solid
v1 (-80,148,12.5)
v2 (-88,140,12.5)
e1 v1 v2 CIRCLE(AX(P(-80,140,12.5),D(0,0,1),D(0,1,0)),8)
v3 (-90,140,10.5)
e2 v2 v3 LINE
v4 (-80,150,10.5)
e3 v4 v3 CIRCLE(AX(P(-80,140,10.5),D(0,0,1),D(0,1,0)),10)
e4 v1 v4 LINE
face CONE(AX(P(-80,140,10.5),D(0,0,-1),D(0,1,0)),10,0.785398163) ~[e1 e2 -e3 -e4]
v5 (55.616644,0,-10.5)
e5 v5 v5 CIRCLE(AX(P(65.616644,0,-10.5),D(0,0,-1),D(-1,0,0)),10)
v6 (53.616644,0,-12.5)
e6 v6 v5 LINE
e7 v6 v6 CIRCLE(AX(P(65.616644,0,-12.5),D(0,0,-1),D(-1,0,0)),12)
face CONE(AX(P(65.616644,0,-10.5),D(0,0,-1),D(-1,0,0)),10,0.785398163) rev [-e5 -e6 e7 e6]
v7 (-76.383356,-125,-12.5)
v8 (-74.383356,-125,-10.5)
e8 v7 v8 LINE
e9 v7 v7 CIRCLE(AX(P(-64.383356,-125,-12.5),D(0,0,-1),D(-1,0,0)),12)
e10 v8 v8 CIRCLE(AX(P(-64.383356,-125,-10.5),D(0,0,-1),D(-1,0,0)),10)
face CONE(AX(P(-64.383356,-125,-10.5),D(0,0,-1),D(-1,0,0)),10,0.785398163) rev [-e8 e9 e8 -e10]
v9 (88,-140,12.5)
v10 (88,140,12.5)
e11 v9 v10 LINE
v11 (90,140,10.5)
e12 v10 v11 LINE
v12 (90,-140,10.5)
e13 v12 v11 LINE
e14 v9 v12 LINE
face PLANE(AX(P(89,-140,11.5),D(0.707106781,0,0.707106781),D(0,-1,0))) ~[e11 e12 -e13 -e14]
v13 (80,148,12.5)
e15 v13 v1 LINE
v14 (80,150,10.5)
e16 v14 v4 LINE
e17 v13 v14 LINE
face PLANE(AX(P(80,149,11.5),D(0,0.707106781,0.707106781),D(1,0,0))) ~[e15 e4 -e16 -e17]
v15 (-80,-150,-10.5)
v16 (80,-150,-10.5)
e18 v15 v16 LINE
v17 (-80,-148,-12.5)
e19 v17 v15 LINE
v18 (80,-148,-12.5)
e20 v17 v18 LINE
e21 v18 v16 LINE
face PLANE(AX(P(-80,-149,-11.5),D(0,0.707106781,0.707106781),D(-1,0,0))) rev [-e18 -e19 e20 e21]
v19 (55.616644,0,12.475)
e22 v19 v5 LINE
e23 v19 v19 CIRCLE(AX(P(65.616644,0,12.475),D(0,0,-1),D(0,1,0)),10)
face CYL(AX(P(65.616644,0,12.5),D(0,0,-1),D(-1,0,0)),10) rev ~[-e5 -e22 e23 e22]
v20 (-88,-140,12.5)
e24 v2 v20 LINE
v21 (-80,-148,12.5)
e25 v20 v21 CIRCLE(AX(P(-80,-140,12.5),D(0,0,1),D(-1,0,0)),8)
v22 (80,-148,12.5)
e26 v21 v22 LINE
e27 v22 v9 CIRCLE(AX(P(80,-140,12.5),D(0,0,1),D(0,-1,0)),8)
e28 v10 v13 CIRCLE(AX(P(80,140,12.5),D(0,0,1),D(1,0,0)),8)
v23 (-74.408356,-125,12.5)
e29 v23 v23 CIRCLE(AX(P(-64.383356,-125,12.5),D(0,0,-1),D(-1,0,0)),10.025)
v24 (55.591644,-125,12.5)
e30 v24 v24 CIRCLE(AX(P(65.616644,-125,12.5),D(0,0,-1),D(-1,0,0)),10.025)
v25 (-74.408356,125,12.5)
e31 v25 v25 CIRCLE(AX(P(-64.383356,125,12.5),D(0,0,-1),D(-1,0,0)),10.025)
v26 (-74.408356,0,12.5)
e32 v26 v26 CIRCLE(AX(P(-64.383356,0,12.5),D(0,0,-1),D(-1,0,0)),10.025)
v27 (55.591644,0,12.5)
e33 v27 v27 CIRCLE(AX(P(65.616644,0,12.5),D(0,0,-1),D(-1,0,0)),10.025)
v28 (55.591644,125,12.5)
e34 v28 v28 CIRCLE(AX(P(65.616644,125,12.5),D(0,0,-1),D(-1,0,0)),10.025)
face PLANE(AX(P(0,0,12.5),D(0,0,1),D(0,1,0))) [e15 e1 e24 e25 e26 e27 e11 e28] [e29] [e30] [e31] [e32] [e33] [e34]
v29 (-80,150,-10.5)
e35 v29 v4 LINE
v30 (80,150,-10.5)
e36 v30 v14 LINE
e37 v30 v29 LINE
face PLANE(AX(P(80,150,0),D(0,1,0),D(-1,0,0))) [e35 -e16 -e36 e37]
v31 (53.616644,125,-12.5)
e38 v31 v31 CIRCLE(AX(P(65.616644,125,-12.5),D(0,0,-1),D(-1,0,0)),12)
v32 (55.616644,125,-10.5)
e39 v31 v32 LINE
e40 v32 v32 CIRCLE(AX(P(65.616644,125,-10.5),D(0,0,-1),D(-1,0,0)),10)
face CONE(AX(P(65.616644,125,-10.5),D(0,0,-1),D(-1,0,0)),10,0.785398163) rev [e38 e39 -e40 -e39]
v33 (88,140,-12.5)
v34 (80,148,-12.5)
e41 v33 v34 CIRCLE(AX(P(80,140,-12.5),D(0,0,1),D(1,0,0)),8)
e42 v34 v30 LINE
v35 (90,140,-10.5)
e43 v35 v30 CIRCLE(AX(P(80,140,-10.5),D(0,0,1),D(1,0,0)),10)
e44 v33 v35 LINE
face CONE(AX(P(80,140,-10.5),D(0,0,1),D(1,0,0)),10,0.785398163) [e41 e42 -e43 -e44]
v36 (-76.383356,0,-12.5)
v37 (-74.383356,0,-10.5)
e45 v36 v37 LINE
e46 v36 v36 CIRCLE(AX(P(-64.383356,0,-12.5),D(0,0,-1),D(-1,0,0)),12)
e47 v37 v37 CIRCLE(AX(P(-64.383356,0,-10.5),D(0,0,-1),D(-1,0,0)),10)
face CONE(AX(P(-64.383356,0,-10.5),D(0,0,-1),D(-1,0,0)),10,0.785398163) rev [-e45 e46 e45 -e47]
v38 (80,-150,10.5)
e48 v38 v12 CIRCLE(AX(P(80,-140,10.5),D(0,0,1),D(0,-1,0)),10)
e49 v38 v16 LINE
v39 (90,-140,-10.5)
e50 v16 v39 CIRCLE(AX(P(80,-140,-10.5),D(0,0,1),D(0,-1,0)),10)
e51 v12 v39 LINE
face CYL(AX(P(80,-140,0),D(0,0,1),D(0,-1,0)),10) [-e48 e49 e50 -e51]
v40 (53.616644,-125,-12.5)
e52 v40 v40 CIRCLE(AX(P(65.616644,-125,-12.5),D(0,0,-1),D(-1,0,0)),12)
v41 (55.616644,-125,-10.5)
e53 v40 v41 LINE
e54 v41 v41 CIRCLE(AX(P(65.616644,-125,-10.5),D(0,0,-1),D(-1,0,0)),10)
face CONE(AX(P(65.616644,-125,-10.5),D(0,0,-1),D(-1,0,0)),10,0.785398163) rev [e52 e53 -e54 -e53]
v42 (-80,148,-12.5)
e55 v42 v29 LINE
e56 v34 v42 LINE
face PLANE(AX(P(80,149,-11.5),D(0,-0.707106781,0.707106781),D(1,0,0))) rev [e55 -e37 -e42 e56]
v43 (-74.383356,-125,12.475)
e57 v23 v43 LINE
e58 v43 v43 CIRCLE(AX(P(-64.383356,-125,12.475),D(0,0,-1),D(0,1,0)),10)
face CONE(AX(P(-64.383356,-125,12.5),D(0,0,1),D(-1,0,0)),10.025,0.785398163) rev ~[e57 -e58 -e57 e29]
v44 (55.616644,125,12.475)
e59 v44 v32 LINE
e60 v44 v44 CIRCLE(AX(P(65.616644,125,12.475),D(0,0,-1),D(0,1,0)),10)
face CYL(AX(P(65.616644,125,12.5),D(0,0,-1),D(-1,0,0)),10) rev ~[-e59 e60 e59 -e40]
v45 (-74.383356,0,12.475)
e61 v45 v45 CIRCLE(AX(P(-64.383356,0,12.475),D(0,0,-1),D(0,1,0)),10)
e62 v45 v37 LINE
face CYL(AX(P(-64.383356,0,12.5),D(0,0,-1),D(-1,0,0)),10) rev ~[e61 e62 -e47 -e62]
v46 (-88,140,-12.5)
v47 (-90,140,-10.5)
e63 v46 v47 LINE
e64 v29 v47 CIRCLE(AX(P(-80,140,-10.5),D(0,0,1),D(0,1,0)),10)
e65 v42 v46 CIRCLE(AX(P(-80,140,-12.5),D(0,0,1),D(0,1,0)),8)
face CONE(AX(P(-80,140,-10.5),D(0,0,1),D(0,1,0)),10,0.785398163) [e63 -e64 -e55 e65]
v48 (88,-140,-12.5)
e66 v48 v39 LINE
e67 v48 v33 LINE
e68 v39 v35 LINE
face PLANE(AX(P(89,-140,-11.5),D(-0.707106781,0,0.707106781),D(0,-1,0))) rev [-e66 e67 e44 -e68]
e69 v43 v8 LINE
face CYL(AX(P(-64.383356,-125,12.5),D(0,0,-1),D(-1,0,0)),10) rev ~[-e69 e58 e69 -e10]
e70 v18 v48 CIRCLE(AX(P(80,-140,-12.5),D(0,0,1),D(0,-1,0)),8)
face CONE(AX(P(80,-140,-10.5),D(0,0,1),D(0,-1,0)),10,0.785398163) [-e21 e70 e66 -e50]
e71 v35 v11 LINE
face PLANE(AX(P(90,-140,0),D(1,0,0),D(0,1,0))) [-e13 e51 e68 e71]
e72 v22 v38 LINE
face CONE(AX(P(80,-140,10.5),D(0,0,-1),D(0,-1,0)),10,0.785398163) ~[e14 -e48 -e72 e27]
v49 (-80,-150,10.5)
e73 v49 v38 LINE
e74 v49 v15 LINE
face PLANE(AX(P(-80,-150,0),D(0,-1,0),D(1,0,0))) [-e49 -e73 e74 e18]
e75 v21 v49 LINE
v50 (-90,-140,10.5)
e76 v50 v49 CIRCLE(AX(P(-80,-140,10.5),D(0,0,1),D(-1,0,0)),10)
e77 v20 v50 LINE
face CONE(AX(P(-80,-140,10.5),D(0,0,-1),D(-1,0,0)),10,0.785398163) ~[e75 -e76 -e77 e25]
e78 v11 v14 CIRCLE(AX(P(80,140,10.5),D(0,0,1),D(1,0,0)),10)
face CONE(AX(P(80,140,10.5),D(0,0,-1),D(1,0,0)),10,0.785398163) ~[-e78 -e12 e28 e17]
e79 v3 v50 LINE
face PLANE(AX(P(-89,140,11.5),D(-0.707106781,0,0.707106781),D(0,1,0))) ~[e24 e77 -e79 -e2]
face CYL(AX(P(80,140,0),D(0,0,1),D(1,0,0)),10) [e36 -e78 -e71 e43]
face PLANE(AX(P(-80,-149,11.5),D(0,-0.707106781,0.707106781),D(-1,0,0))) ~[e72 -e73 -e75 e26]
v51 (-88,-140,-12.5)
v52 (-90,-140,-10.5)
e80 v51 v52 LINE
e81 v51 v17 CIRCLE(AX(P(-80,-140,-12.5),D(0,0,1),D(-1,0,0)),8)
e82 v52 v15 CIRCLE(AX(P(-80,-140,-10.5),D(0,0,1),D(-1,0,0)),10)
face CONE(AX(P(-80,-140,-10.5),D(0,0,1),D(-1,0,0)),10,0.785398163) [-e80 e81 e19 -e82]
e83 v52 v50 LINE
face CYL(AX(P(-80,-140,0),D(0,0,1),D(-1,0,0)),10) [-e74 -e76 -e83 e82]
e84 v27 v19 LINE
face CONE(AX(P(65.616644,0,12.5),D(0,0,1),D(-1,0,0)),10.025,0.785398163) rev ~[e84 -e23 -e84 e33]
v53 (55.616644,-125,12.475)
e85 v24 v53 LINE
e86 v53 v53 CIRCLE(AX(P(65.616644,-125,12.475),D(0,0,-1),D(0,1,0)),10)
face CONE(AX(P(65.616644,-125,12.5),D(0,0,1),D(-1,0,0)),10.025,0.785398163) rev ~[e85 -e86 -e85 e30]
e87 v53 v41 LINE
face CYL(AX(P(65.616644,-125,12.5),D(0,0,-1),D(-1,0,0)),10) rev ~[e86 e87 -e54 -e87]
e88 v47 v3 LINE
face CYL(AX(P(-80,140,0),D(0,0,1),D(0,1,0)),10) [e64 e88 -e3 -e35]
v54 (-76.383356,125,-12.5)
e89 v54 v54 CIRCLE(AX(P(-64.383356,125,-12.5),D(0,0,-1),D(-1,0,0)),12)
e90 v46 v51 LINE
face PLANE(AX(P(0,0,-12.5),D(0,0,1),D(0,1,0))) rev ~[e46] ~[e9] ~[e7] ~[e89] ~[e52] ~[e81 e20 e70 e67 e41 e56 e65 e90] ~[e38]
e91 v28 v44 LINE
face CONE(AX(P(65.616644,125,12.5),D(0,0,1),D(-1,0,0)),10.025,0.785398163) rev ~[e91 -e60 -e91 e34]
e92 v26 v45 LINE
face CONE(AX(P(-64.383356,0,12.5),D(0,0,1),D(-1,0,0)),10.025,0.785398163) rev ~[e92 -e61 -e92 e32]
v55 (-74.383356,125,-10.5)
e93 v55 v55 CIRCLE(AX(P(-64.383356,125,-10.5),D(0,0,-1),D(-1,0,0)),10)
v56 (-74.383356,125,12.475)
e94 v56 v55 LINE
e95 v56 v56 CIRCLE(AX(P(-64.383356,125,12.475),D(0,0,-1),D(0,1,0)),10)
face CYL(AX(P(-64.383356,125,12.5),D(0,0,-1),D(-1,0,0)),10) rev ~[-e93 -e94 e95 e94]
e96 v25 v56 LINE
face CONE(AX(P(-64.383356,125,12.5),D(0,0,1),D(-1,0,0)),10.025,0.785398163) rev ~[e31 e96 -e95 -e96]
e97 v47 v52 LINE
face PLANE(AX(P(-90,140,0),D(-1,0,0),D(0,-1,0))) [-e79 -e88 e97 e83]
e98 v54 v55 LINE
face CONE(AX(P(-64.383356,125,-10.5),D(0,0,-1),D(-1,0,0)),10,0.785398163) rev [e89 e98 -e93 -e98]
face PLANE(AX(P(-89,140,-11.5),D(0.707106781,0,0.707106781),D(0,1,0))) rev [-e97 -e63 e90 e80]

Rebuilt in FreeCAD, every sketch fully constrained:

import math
import FreeCAD as App
import Part
import Sketcher

V = App.Vector


def edges_at(feature, points):
    """Names of the edges that pass closest to the given points."""
    edges = feature.Shape.Edges
    near = lambda p: min(range(len(edges)), key=lambda i: edges[i].distToShape(Part.Vertex(*p))[0])
    return sorted({f"Edge{near(p) + 1}" for p in points})

doc = App.newDocument("Part")
body = doc.addObject("PartDesign::Body", "Body")

# Sketch on XY plane
sketch1 = body.newObject("Sketcher::SketchObject", "Sketch")
sketch1.AttachmentSupport = (doc.getObject("XY_Plane"), [""])
sketch1.MapMode = "FlatFace"
sketch1.addGeometry([
    Part.LineSegment(V(90, -140, 0), V(90, 140, 0)),  # 0
    Part.ArcOfCircle(Part.Circle(V(80, 140, 0), V(0, 0, 1), 10), math.radians(0), math.radians(90)),  # 1
    Part.LineSegment(V(80, 150, 0), V(-80, 150, 0)),  # 2
    Part.ArcOfCircle(Part.Circle(V(-80, 140, 0), V(0, 0, 1), 10), math.radians(90), math.radians(180)),  # 3
    Part.LineSegment(V(-90, 140, 0), V(-90, -140, 0)),  # 4
    Part.ArcOfCircle(Part.Circle(V(-80, -140, 0), V(0, 0, 1), 10), math.radians(180), math.radians(270)),  # 5
    Part.LineSegment(V(-80, -150, 0), V(80, -150, 0)),  # 6
    Part.ArcOfCircle(Part.Circle(V(80, -140, 0), V(0, 0, 1), 10), math.radians(-90), math.radians(0)),  # 7
], False)
sketch1.addConstraint([
    Sketcher.Constraint("Tangent", 0, 2, 1, 1),
    Sketcher.Constraint("Tangent", 1, 2, 2, 1),
    Sketcher.Constraint("Tangent", 2, 2, 3, 1),
    Sketcher.Constraint("Tangent", 3, 2, 4, 1),
    Sketcher.Constraint("Tangent", 4, 2, 5, 1),
    Sketcher.Constraint("Tangent", 5, 2, 6, 1),
    Sketcher.Constraint("Tangent", 6, 2, 7, 1),
    Sketcher.Constraint("Tangent", 7, 2, 0, 1),
    Sketcher.Constraint("Vertical", 0),
    Sketcher.Constraint("Horizontal", 2),
    Sketcher.Constraint("Vertical", 4),
    Sketcher.Constraint("Horizontal", 6),
    Sketcher.Constraint("Equal", 1, 3),
    Sketcher.Constraint("Equal", 3, 5),
    Sketcher.Constraint("Equal", 5, 7),
    Sketcher.Constraint("Symmetric", 1, 3, 5, 3, -1, 1),
    Sketcher.Constraint("Radius", 1, 10.0),
    Sketcher.Constraint("DistanceX", 2, 2, 2, 1, 160.0),
    Sketcher.Constraint("DistanceY", 0, 1, 0, 2, 280.0),
])
pad1 = body.newObject("PartDesign::Pad", "Pad")
pad1.Profile = sketch1
pad1.Length = 25
pad1.Midplane = True

# Sketch on XY plane
sketch2 = body.newObject("Sketcher::SketchObject", "Sketch001")
sketch2.AttachmentSupport = (doc.getObject("XY_Plane"), [""])
sketch2.MapMode = "FlatFace"
sketch2.AttachmentOffset = App.Placement(V(0, 0, 12.5), App.Rotation())
sketch2.addGeometry([
    Part.Circle(V(-64.383356, -125, 0), V(0, 0, 1), 10),  # 0
    Part.Circle(V(-64.383356, 0, 0), V(0, 0, 1), 10),  # 1
    Part.Circle(V(-64.383356, 125, 0), V(0, 0, 1), 10),  # 2
    Part.Circle(V(65.616644, 125, 0), V(0, 0, 1), 10),  # 3
    Part.Circle(V(65.616644, 0, 0), V(0, 0, 1), 10),  # 4
    Part.Circle(V(65.616644, -125, 0), V(0, 0, 1), 10),  # 5
], False)
sketch2.addConstraint([
    Sketcher.Constraint("Equal", 0, 1),
    Sketcher.Constraint("Equal", 1, 2),
    Sketcher.Constraint("Equal", 2, 3),
    Sketcher.Constraint("Equal", 3, 4),
    Sketcher.Constraint("Equal", 4, 5),
    Sketcher.Constraint("Symmetric", 0, 3, 2, 3, -1),
    Sketcher.Constraint("Symmetric", 3, 3, 5, 3, -1),
    Sketcher.Constraint("PointOnObject", 1, 3, -1),
    Sketcher.Constraint("PointOnObject", 4, 3, -1),
    Sketcher.Constraint("Horizontal", 2, 3, 3, 3),
    Sketcher.Constraint("Vertical", 0, 3, 1, 3),
    Sketcher.Constraint("Vertical", 3, 3, 4, 3),
    Sketcher.Constraint("Diameter", 0, 20.0),
    Sketcher.Constraint("DistanceY", 0, 3, -1, 1, 125.0),
    Sketcher.Constraint("DistanceX", 2, 3, 3, 3, 130.0),
    Sketcher.Constraint("DistanceX", 0, 3, -1, 1, 64.383356),
])
doc.recompute()
hole = body.newObject("PartDesign::Hole", "Hole")
hole.Profile = sketch2
hole.ThreadType = "None"
hole.Diameter = 20
hole.DepthType = "ThroughAll"
hole.HoleCutType = "Countersink"
hole.HoleCutDiameter = 20.05
hole.HoleCutCountersinkAngle = 90
doc.recompute()

chamfer = body.newObject("PartDesign::Chamfer", "Chamfer")
chamfer.Base = (hole, edges_at(hole, [
    (87.071, 147.071, 12.5),
    (0, 150, 12.5),
    (-87.071, 147.071, 12.5),
    (-90, 0, 12.5),
    (-87.071, -147.071, 12.5),
    (0, -150, 12.5),
    (87.071, -147.071, 12.5),
    (90, 0, 12.5),
]))
chamfer.Size = 2
doc.recompute()

chamfer2 = body.newObject("PartDesign::Chamfer", "Chamfer001")
chamfer2.Base = (chamfer, edges_at(chamfer, [
    (0, 150, -12.5),
    (87.071, 147.071, -12.5),
    (90, 0, -12.5),
    (87.071, -147.071, -12.5),
    (75.617, -125, -12.5),
    (75.617, 0, -12.5),
    (75.617, 125, -12.5),
    (-54.383, 125, -12.5),
    (-54.383, 0, -12.5),
    (-54.383, -125, -12.5),
    (0, -150, -12.5),
    (-87.071, -147.071, -12.5),
    (-90, 0, -12.5),
    (-87.071, 147.071, -12.5),
]))
chamfer2.Size = 2

doc.recompute()
